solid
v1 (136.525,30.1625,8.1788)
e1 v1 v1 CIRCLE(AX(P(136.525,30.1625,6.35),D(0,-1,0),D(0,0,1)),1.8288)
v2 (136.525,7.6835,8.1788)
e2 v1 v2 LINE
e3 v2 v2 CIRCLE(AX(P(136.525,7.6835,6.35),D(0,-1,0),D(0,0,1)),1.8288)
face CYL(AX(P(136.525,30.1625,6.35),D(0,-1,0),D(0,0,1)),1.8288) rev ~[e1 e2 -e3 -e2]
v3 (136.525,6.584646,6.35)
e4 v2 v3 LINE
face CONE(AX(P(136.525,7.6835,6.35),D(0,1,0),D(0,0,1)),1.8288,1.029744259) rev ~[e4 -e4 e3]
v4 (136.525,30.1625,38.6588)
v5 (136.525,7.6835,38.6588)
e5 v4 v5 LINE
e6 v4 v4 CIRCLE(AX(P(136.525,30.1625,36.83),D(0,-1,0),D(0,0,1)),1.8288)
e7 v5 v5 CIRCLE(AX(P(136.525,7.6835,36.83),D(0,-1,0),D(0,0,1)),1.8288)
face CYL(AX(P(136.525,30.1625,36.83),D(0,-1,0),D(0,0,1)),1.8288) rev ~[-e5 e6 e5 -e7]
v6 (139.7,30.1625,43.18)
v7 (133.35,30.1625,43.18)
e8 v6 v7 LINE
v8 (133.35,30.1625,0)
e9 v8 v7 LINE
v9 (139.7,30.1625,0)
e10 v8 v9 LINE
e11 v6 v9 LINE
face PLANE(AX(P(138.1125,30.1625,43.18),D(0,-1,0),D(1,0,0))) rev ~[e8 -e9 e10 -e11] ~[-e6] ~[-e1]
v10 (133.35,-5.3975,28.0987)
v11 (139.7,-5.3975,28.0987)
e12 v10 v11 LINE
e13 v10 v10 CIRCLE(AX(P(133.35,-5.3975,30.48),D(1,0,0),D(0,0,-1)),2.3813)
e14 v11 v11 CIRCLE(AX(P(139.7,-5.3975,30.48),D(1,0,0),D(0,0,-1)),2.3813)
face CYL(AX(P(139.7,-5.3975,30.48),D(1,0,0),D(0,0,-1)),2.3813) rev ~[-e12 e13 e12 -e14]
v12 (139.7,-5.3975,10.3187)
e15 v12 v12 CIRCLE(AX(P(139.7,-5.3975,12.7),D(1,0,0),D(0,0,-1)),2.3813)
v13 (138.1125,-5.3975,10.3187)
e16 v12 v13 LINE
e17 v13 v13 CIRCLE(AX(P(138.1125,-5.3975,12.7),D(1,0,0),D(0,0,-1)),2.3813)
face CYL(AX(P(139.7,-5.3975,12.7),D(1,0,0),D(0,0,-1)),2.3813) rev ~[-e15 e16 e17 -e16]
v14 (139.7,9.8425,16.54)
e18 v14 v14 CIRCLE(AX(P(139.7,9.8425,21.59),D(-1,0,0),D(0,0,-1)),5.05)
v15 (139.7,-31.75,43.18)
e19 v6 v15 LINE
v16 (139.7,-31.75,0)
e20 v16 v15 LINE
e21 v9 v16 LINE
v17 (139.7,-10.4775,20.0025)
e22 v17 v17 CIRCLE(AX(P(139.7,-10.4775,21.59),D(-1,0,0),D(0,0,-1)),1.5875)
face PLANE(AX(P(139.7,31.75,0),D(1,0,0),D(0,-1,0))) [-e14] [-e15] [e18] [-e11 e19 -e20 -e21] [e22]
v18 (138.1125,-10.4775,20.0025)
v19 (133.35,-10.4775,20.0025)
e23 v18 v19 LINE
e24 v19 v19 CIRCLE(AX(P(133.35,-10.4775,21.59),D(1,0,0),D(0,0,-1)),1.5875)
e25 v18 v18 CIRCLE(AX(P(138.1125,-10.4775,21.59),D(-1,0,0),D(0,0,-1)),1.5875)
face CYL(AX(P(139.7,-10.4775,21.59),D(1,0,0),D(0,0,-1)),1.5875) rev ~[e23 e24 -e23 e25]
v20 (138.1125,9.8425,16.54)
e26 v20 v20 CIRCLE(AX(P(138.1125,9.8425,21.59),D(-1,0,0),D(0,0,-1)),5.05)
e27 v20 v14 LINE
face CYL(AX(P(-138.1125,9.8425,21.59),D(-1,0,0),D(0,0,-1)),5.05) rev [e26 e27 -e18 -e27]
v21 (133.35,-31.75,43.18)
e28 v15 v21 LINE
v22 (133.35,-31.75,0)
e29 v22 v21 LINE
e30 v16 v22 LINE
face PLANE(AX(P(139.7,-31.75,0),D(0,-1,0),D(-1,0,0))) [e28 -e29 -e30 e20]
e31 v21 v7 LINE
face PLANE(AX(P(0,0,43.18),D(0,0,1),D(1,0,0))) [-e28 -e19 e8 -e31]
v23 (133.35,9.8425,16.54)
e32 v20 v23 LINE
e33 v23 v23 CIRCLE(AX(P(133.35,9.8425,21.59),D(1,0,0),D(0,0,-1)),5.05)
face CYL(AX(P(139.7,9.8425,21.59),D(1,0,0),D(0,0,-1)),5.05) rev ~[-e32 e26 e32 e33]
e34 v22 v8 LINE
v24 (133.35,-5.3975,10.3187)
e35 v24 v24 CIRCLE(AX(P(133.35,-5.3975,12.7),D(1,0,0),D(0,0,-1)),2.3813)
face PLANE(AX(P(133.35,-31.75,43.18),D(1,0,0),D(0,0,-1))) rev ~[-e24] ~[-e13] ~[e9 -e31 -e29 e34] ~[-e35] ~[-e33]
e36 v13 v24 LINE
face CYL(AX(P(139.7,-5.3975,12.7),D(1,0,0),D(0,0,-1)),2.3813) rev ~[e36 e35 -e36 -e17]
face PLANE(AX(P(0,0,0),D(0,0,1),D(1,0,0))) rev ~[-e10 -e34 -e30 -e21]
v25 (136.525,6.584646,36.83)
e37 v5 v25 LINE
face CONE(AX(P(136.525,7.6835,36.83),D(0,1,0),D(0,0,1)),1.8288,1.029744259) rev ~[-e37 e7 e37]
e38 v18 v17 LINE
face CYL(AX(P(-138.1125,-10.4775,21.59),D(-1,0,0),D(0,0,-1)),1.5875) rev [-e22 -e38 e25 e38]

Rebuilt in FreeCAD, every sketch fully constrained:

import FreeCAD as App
import Part
import Sketcher
Q = App.Units.Quantity


def add_polygon(sketch, points):
    """Adds a closed chain of lines whose ends are joined by coincident constraints."""
    first, n = sketch.GeometryCount, len(points)
    for a, b in zip(points, points[1:] + points[:1]):
        sketch.addGeometry(Part.LineSegment(App.Vector(*a, 0), App.Vector(*b, 0)), False)
    for i in range(n):
        sketch.addConstraint(Sketcher.Constraint("Coincident", first + i, 2, first + (i + 1) % n, 1))

doc = App.newDocument("Part")
params = doc.addObject("Spreadsheet::Sheet", "Params")
for row, (alias, value) in enumerate([
    ("sketch1_width", "11 in"),
    ("sketch1_height", "2.5 in"),
    ("pad1_length", "1.7 in"),
    ("sketch2_width", "10.875 in"),
    ("sketch2_height", "2.4375 in"),
    ("pocket1_length", "1.7 in"),
    ("sketch3_diameter", "0.125 in"),
    ("sketch4_diameter", "0.1875 in"),
    ("pocket3_length", "0.0625 in"),
    ("sketch5_diameter", "0.125 in"),
    ("pocket4_length", "0.0625 in"),
    ("sketch7_diameter", "0.1875 in"),
    ("sketch7_diameter2", "0.125 in"),
    ("sketch7_height", "1.7 in"),
    ("sketch7_width", "2.4375 in"),
    ("pad2_length", "0.25 in"),
    ("sketch8_diameter", "0.144 in"),
    ("hole_diameter", "0.144 in"),
    ("hole_depth", "0.885 in"),
], start=1):
    params.set(f"A{row}", alias)
    params.set(f"B{row}", "=" + value)
    params.setAlias(f"B{row}", alias)

body = doc.addObject("PartDesign::Body", "Body")

sketch1 = body.newObject("Sketcher::SketchObject", "Sketch")
sketch1.AttachmentSupport = (doc.getObject("XY_Plane"), [""])
sketch1.MapMode = "FlatFace"
add_polygon(sketch1, [(140, 32), (-140, 32), (-140, -32), (140, -32)])
sketch1.addConstraint([
    Sketcher.Constraint("Horizontal", 0),
    Sketcher.Constraint("Vertical", 1),
    Sketcher.Constraint("Horizontal", 2),
    Sketcher.Constraint("Vertical", 3),
    Sketcher.Constraint("Symmetric", 0, 2, 2, 2, -1, 1),
    Sketcher.Constraint("DistanceX", 0, 2, 0, 1, Q("11 in")),
    Sketcher.Constraint("DistanceY", 1, 2, 1, 1, Q("2.5 in")),
])
sketch1.setExpression("Constraints[9]", "Params.sketch1_width")
sketch1.setExpression("Constraints[10]", "Params.sketch1_height")
pad1 = body.newObject("PartDesign::Pad", "Pad")
pad1.Profile = sketch1
pad1.setExpression("Length", "Params.pad1_length")

sketch2 = body.newObject("Sketcher::SketchObject", "Sketch001")
sketch2.AttachmentSupport = (doc.getObject("XY_Plane"), [""])
sketch2.MapMode = "FlatFace"
sketch2.AttachmentOffset = App.Placement(App.Vector(0, 0, 1.7 * 25.4), App.Rotation())
add_polygon(sketch2, [(-138, 30), (-138, -32), (138, -32), (138, 30)])
sketch2.addConstraint([
    Sketcher.Constraint("Vertical", 0),
    Sketcher.Constraint("Horizontal", 1),
    Sketcher.Constraint("Vertical", 2),
    Sketcher.Constraint("Horizontal", 3),
    Sketcher.Constraint("DistanceX", 1, 1, 1, 2, Q("10.875 in")),
    Sketcher.Constraint("DistanceY", 0, 2, 0, 1, Q("2.4375 in")),
    Sketcher.Constraint("DistanceY", 0, 2, -1, 1, Q("1.25 in")),
    Sketcher.Constraint("DistanceX", 0, 2, -1, 1, Q("5.4375 in")),
])
sketch2.setExpression("Constraints[8]", "Params.sketch2_width")
sketch2.setExpression("Constraints[9]", "Params.sketch2_height")
pocket1 = body.newObject("PartDesign::Pocket", "Pocket")
pocket1.Profile = sketch2
pocket1.setExpression("Length", "Params.pocket1_length")

sketch3 = body.newObject("Sketcher::SketchObject", "Sketch002")
sketch3.AttachmentSupport = (doc.getObject("YZ_Plane"), [""])
sketch3.MapMode = "FlatFace"
sketch3.AttachmentOffset = App.Placement(App.Vector(0, 0, -5.4375 * 25.4), App.Rotation())
sketch3.addGeometry([
    Part.Circle(App.Vector(9.8, 21.6, 0), App.Vector(0, 0, 1), 5),
    Part.Circle(App.Vector(-10.5, 21.6, 0), App.Vector(0, 0, 1), 1.6),
], False)
sketch3.addConstraint([
    Sketcher.Constraint("Horizontal", 0, 3, 1, 3),
    Sketcher.Constraint("Diameter", 1, Q("0.125 in")),
    Sketcher.Constraint("DistanceX", 1, 3, 0, 3, Q("0.8 in")),
    Sketcher.Constraint("Diameter", 0, 10.1),
    Sketcher.Constraint("DistanceY", -1, 1, 0, 3, Q("0.85 in")),
    Sketcher.Constraint("DistanceX", -1, 1, 0, 3, Q("0.3875 in")),
])
sketch3.setExpression("Constraints[1]", "Params.sketch3_diameter")
pocket2 = body.newObject("PartDesign::Pocket", "Pocket001")
pocket2.Profile = sketch3
pocket2.Type = "ThroughAll"
pocket2.Midplane = True

sketch4 = body.newObject("Sketcher::SketchObject", "Sketch003")
sketch4.AttachmentSupport = (doc.getObject("YZ_Plane"), [""])
sketch4.MapMode = "FlatFace"
sketch4.AttachmentOffset = App.Placement(App.Vector(0, 0, 5.5 * 25.4), App.Rotation())
sketch4.addGeometry([
    Part.Circle(App.Vector(-5.4, 12.7, 0), App.Vector(0, 0, 1), 2.4),
    Part.Circle(App.Vector(-5.4, 30.5, 0), App.Vector(0, 0, 1), 2.4),
], False)
sketch4.addConstraint([
    Sketcher.Constraint("Equal", 0, 1),
    Sketcher.Constraint("Vertical", 0, 3, 1, 3),
    Sketcher.Constraint("Diameter", 0, Q("0.1875 in")),
    Sketcher.Constraint("DistanceY", -1, 1, 0, 3, Q("0.5 in")),
    Sketcher.Constraint("DistanceY", -1, 1, 1, 3, Q("1.2 in")),
    Sketcher.Constraint("DistanceX", 0, 3, -1, 1, Q("0.2125 in")),
])
sketch4.setExpression("Constraints[2]", "Params.sketch4_diameter")
pocket3 = body.newObject("PartDesign::Pocket", "Pocket002")
pocket3.Profile = sketch4
pocket3.setExpression("Length", "Params.pocket3_length")

sketch5 = body.newObject("Sketcher::SketchObject", "Sketch004")
sketch5.AttachmentSupport = (doc.getObject("YZ_Plane"), [""])
sketch5.MapMode = "FlatFace"
sketch5.AttachmentOffset = App.Placement(App.Vector(0, 0, -5.5 * 25.4), App.Rotation())
sketch5.addGeometry([
    Part.Circle(App.Vector(25.3, 37.1, 0), App.Vector(0, 0, 1), 1.6),
    Part.Circle(App.Vector(25.3, 6.1, 0), App.Vector(0, 0, 1), 1.6),
    Part.Circle(App.Vector(-5.7, 37.1, 0), App.Vector(0, 0, 1), 1.6),
    Part.Circle(App.Vector(-5.7, 6.1, 0), App.Vector(0, 0, 1), 1.6),
], False)
sketch5.addConstraint([
    Sketcher.Constraint("Equal", 0, 1),
    Sketcher.Constraint("Equal", 1, 2),
    Sketcher.Constraint("Equal", 2, 3),
    Sketcher.Constraint("Horizontal", 0, 3, 2, 3),
    Sketcher.Constraint("Horizontal", 1, 3, 3, 3),
    Sketcher.Constraint("Vertical", 0, 3, 1, 3),
    Sketcher.Constraint("Vertical", 2, 3, 3, 3),
    Sketcher.Constraint("Diameter", 0, Q("0.125 in")),
    Sketcher.Constraint("DistanceX", -1, 1, 0, 3, 25.3425),
    Sketcher.Constraint("DistanceY", -1, 1, 0, 3, 37.09),
    Sketcher.Constraint("DistanceY", -1, 1, 1, 3, 6.09),
    Sketcher.Constraint("DistanceX", 2, 3, -1, 1, 5.6575),
])
sketch5.setExpression("Constraints[7]", "Params.sketch5_diameter")
pocket4 = body.newObject("PartDesign::Pocket", "Pocket003")
pocket4.Profile = sketch5
pocket4.setExpression("Length", "Params.pocket4_length")
pocket4.Reversed = True

sketch6 = body.newObject("Sketcher::SketchObject", "Sketch005")
sketch6.AttachmentSupport = (doc.getObject("XY_Plane"), [""])
sketch6.MapMode = "FlatFace"
sketch6.AttachmentOffset = App.Placement(App.Vector(0, 0, 1.7 * 25.4), App.Rotation())
add_polygon(sketch6, [(148, 40), (138, 40), (138, 50), (-193, 50), (-193, -79), (-74, -79), (-74, 30), (148, 30)])
sketch6.addConstraint([
    Sketcher.Constraint("Horizontal", 0),
    Sketcher.Constraint("Vertical", 1),
    Sketcher.Constraint("Horizontal", 2),
    Sketcher.Constraint("Vertical", 3),
    Sketcher.Constraint("Horizontal", 4),
    Sketcher.Constraint("Vertical", 5),
    Sketcher.Constraint("Horizontal", 6),
    Sketcher.Constraint("Vertical", 7),
    Sketcher.Constraint("DistanceX", -1, 1, 0, 2, Q("5.4375 in")),
    Sketcher.Constraint("DistanceY", -1, 1, 5, 2, Q("1.1875 in")),
    Sketcher.Constraint("DistanceY", 3, 2, 0, 2, Q("4.673 in")),
    Sketcher.Constraint("DistanceX", 0, 2, 0, 1, 9.8392),
    Sketcher.Constraint("DistanceX", 2, 2, 2, 1, Q("13.0181102 in")),
    Sketcher.Constraint("DistanceX", 4, 1, 4, 2, 118.177),
    Sketcher.Constraint("DistanceY", 1, 1, 1, 2, 10.4762),
    Sketcher.Constraint("DistanceY", 5, 1, 5, 2, 109.3333),
])
pocket5 = body.newObject("PartDesign::Pocket", "Pocket004")
pocket5.Profile = sketch6
pocket5.Type = "ThroughAll"

sketch7 = body.newObject("Sketcher::SketchObject", "Sketch006")
sketch7.AttachmentSupport = (doc.getObject("YZ_Plane"), [""])
sketch7.MapMode = "FlatFace"
sketch7.AttachmentOffset = App.Placement(App.Vector(0, 0, 5.5 * 25.4), App.Rotation())
add_polygon(sketch7, [(-31.8, 0), (30.2, 0), (30.2, 43.2), (-31.8, 43.2)])
sketch7.addGeometry(Part.Circle(App.Vector(-5.4, 30.5, 0), App.Vector(0, 0, 1), 2.4), False)
sketch7.addGeometry(Part.Circle(App.Vector(-10.5, 21.6, 0), App.Vector(0, 0, 1), 1.6), False)
sketch7.addGeometry(Part.Circle(App.Vector(-5.4, 12.7, 0), App.Vector(0, 0, 1), 2.4), False)
sketch7.addGeometry(Part.Circle(App.Vector(9.8, 21.6, 0), App.Vector(0, 0, 1), 5), False)
sketch7.addConstraint([
    Sketcher.Constraint("Horizontal", 0),
    Sketcher.Constraint("Vertical", 1),
    Sketcher.Constraint("Horizontal", 2),
    Sketcher.Constraint("Vertical", 3),
    Sketcher.Constraint("Equal", 4, 6),
    Sketcher.Constraint("PointOnObject", 0, 2, -1),
    Sketcher.Constraint("Horizontal", 5, 3, 7, 3),
    Sketcher.Constraint("Vertical", 4, 3, 6, 3),
    Sketcher.Constraint("Diameter", 4, Q("0.1875 in")),
    Sketcher.Constraint("Diameter", 5, Q("0.125 in")),
    Sketcher.Constraint("DistanceY", 1, 1, 1, 2, Q("1.7 in")),
    Sketcher.Constraint("DistanceY", -1, 1, 4, 3, Q("1.2 in")),
    Sketcher.Constraint("DistanceY", -1, 1, 6, 3, Q("0.5 in")),
    Sketcher.Constraint("DistanceX", 5, 3, 4, 3, Q("0.2 in")),
    Sketcher.Constraint("DistanceX", 4, 3, 7, 3, Q("0.6 in")),
    Sketcher.Constraint("DistanceX", 7, 3, 0, 2, Q("0.8 in")),
    Sketcher.Constraint("Diameter", 7, 10.1),
    Sketcher.Constraint("DistanceX", 0, 1, 0, 2, Q("2.4375 in")),
    Sketcher.Constraint("DistanceY", -1, 1, 5, 3, Q("0.85 in")),
    Sketcher.Constraint("DistanceX", 2, 2, -1, 1, Q("1.25 in")),
])
sketch7.setExpression("Constraints[12]", "Params.sketch7_diameter")
sketch7.setExpression("Constraints[13]", "Params.sketch7_diameter2")
sketch7.setExpression("Constraints[14]", "Params.sketch7_height")
sketch7.setExpression("Constraints[21]", "Params.sketch7_width")
pad2 = body.newObject("PartDesign::Pad", "Pad001")
pad2.Profile = sketch7
pad2.setExpression("Length", "Params.pad2_length")
pad2.Reversed = True

sketch8 = body.newObject("Sketcher::SketchObject", "Sketch007")
sketch8.AttachmentSupport = (doc.getObject("XZ_Plane"), [""])
sketch8.MapMode = "FlatFace"
sketch8.AttachmentOffset = App.Placement(App.Vector(0, 0, -1.1875 * 25.4), App.Rotation())
sketch8.addGeometry([
    Part.Circle(App.Vector(136.5, 36.8, 0), App.Vector(0, 0, 1), 1.8),
    Part.Circle(App.Vector(136.5, 6.3, 0), App.Vector(0, 0, 1), 1.8),
], False)
sketch8.addConstraint([
    Sketcher.Constraint("Equal", 0, 1),
    Sketcher.Constraint("Vertical", 0, 3, 1, 3),
    Sketcher.Constraint("Diameter", 0, Q("0.144 in")),
    Sketcher.Constraint("DistanceY", 1, 3, 0, 3, Q("1.2 in")),
    Sketcher.Constraint("DistanceY", -1, 1, 0, 3, Q("1.45 in")),
    Sketcher.Constraint("DistanceX", -1, 1, 0, 3, Q("5.375 in")),
])
sketch8.setExpression("Constraints[2]", "Params.sketch8_diameter")
doc.recompute()
hole = body.newObject("PartDesign::Hole", "Hole")
hole.Profile = sketch8
hole.ThreadType = "None"
hole.setExpression("Diameter", "Params.hole_diameter")
hole.DepthType = "Dimension"
hole.setExpression("Depth", "Params.hole_depth")
hole.DrillPoint = "Angled"
hole.DrillPointAngle = 118
hole.Reversed = True

doc.recompute()
